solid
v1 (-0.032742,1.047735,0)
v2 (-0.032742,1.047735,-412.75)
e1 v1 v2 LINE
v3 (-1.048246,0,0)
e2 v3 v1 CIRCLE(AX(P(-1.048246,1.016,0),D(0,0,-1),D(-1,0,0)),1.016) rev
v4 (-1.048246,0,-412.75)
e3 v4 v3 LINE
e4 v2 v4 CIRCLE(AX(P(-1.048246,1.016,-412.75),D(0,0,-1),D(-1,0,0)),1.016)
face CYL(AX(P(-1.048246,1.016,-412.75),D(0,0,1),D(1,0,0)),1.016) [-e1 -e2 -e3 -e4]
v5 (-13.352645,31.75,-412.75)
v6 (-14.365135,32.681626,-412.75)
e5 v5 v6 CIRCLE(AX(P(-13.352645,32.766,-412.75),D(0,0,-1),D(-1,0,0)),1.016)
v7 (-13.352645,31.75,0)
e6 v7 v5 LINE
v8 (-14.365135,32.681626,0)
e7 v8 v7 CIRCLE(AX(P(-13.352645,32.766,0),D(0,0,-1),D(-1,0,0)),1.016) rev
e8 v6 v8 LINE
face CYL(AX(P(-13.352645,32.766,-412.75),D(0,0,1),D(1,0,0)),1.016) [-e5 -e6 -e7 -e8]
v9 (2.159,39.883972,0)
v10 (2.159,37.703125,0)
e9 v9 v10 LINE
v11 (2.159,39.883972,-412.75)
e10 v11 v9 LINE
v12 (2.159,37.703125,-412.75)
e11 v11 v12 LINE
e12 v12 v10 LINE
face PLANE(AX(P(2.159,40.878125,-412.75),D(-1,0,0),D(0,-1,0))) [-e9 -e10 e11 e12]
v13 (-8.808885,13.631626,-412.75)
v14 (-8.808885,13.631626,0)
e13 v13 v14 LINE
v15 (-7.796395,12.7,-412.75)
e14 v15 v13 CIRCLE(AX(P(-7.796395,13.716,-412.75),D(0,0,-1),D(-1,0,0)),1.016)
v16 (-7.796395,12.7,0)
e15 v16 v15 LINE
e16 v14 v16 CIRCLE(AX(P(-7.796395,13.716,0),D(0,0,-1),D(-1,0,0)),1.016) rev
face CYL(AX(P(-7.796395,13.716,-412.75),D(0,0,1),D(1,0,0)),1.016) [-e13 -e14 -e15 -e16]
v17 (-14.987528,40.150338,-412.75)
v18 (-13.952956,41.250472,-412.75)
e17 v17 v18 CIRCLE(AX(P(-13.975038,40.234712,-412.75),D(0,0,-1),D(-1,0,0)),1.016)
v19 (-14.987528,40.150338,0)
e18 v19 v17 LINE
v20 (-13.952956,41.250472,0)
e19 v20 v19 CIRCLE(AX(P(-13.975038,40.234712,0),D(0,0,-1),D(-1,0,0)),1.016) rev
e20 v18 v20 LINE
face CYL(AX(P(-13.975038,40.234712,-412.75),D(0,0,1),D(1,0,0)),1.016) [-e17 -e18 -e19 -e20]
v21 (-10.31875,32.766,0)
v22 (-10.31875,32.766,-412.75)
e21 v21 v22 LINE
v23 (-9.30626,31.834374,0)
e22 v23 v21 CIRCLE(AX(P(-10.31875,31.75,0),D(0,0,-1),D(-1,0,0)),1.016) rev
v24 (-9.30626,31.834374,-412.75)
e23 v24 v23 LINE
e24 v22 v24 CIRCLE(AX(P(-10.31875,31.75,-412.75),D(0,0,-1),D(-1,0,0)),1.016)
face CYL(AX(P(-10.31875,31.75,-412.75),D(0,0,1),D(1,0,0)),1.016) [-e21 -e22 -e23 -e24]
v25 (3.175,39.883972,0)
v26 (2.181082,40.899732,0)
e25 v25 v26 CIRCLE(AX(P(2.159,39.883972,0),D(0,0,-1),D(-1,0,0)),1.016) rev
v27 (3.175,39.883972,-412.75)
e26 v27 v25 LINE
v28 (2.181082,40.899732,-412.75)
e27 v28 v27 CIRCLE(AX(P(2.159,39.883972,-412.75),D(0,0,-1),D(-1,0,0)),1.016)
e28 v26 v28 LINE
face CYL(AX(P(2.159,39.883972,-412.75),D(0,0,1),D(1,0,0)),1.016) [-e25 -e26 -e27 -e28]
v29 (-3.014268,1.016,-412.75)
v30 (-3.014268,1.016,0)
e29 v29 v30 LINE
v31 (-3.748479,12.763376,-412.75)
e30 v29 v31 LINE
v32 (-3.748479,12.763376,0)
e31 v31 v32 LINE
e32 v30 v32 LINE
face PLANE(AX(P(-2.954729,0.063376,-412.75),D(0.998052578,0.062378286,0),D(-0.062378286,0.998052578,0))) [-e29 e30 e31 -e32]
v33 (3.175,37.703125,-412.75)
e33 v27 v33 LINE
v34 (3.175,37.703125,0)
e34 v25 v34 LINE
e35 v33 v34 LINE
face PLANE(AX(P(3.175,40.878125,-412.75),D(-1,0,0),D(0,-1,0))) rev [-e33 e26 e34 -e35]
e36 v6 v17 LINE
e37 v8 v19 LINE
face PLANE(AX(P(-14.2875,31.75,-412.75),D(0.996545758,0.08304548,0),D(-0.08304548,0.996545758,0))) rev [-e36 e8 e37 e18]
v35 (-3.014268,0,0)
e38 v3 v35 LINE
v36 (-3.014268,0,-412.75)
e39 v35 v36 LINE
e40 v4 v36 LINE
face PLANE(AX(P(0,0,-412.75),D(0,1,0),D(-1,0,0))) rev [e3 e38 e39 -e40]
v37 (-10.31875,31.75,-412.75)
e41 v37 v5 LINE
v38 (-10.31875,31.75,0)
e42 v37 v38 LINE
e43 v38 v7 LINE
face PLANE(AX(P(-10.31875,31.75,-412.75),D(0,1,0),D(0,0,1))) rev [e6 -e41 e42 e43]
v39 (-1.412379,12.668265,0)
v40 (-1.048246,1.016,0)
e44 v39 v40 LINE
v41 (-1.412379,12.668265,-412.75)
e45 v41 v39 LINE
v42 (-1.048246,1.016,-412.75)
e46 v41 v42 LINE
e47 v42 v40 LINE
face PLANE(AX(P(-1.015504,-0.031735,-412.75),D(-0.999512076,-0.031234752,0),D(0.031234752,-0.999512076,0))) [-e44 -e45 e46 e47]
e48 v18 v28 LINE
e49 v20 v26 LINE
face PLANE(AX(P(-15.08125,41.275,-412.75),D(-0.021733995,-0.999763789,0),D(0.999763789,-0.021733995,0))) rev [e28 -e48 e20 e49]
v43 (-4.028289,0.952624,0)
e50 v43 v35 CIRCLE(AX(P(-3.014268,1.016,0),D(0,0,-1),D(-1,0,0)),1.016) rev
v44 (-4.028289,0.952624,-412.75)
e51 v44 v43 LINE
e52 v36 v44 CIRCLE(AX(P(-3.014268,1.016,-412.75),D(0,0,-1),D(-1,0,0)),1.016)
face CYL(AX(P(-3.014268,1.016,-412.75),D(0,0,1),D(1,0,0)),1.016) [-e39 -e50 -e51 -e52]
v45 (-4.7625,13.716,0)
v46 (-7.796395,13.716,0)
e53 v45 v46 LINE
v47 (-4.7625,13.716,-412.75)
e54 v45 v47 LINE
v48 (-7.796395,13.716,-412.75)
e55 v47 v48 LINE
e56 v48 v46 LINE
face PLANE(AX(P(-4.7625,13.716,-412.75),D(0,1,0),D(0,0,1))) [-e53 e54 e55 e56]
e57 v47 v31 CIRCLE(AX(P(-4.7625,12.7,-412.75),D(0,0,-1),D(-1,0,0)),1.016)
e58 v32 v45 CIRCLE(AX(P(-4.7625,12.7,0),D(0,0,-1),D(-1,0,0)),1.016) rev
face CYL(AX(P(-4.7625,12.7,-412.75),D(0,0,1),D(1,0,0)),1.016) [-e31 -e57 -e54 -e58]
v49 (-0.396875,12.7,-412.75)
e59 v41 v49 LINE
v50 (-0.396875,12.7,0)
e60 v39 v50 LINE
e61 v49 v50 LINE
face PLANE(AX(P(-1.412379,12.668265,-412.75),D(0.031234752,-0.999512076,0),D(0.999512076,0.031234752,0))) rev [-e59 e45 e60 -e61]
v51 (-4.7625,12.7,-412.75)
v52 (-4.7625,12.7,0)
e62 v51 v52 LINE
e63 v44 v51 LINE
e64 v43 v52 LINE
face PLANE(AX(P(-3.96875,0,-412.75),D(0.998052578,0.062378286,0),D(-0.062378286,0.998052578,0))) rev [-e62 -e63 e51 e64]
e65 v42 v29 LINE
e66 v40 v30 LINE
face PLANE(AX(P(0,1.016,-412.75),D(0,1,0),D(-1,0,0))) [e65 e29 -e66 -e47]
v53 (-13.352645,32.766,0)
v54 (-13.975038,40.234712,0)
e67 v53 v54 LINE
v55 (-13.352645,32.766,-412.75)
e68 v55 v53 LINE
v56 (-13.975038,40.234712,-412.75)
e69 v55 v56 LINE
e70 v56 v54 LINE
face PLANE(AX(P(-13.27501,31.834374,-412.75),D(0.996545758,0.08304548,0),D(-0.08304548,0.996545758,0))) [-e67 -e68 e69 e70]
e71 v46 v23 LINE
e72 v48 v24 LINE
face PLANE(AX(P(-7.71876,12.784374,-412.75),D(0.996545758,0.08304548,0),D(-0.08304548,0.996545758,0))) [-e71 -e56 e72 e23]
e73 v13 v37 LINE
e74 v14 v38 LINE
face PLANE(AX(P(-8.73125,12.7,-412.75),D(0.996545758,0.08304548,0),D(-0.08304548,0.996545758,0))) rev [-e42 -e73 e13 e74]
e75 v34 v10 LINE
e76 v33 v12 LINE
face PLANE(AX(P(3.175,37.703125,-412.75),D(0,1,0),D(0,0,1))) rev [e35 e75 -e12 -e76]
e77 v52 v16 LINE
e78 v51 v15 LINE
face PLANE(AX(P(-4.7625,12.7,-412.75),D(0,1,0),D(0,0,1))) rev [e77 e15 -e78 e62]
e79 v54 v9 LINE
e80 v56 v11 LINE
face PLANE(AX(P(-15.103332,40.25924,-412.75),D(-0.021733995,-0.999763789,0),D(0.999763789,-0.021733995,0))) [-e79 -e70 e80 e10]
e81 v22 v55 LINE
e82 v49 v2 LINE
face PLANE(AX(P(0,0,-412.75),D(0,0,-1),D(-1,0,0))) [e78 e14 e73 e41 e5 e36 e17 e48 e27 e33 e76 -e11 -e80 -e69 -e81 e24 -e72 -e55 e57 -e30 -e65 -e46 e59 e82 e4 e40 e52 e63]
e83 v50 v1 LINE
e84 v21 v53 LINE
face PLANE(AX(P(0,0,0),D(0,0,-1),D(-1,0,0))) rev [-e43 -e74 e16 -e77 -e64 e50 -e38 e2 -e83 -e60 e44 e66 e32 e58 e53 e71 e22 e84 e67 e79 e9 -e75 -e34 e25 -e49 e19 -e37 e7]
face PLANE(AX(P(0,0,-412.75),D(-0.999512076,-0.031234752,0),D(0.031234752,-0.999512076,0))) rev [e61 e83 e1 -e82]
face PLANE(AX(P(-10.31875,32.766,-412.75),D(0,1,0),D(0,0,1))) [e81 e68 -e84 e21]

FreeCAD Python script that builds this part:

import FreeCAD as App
import Part
import Sketcher
from FreeCAD import Vector
Q = App.Units.Quantity


def edges_at(feature, points):
    """Names of the edges that pass closest to the given points."""
    edges = feature.Shape.Edges
    near = lambda p: min(range(len(edges)), key=lambda i: edges[i].distToShape(Part.Vertex(*p))[0])
    return sorted({f"Edge{near(p) + 1}" for p in points})

doc = App.newDocument("Part")
body = doc.addObject("PartDesign::Body", "Body")

# Sketch on XY plane
sketch1 = doc.addObject("Sketcher::SketchObject", "Sketch")
body.addObject(sketch1)
sketch1.AttachmentSupport = (doc.XY_Plane, [""])
sketch1.MapMode = "FlatFace"
sketch1.addGeometry([
    Part.LineSegment(Vector(3.2, 37.7, 0), Vector(3.2, 40.9, 0)),  # 0
    Part.LineSegment(Vector(3.2, 40.9, 0), Vector(-15.1, 41.3, 0)),  # 1
    Part.LineSegment(Vector(-15.1, 41.3, 0), Vector(-14.3, 31.8, 0)),  # 2
    Part.LineSegment(Vector(-14.3, 31.8, 0), Vector(-10.3, 31.8, 0)),  # 3
    Part.LineSegment(Vector(-10.3, 31.8, 0), Vector(-8.7, 12.7, 0)),  # 4
    Part.LineSegment(Vector(-8.7, 12.7, 0), Vector(-4.8, 12.7, 0)),  # 5
    Part.LineSegment(Vector(-4.8, 12.7, 0), Vector(-4, 0, 0)),  # 6
    Part.LineSegment(Vector(-4, 0, 0), Vector(0, 0, 0)),  # 7
    Part.LineSegment(Vector(0, 0, 0), Vector(-0.4, 12.7, 0)),  # 8
    Part.LineSegment(Vector(-0.4, 12.7, 0), Vector(-1.4, 12.7, 0)),  # 9
    Part.LineSegment(Vector(-1.4, 12.7, 0), Vector(-1, 1, 0)),  # 10
    Part.LineSegment(Vector(-1, 1, 0), Vector(-3, 1, 0)),  # 11
    Part.LineSegment(Vector(-3, 1, 0), Vector(-3.8, 13.7, 0)),  # 12
    Part.LineSegment(Vector(-3.8, 13.7, 0), Vector(-7.8, 13.7, 0)),  # 13
    Part.LineSegment(Vector(-7.8, 13.7, 0), Vector(-9.4, 32.8, 0)),  # 14
    Part.LineSegment(Vector(-9.4, 32.8, 0), Vector(-13.4, 32.8, 0)),  # 15
    Part.LineSegment(Vector(-13.4, 32.8, 0), Vector(-14, 40.2, 0)),  # 16
    Part.LineSegment(Vector(-14, 40.2, 0), Vector(2.2, 39.9, 0)),  # 17
    Part.LineSegment(Vector(2.2, 39.9, 0), Vector(2.2, 37.7, 0)),  # 18
    Part.LineSegment(Vector(2.2, 37.7, 0), Vector(3.2, 37.7, 0)),  # 19
], False)
sketch1.addConstraint([
    Sketcher.Constraint("Coincident", 0, 2, 1, 1),
    Sketcher.Constraint("Coincident", 1, 2, 2, 1),
    Sketcher.Constraint("Coincident", 2, 2, 3, 1),
    Sketcher.Constraint("Coincident", 3, 2, 4, 1),
    Sketcher.Constraint("Coincident", 4, 2, 5, 1),
    Sketcher.Constraint("Coincident", 5, 2, 6, 1),
    Sketcher.Constraint("Coincident", 6, 2, 7, 1),
    Sketcher.Constraint("Coincident", 7, 2, 8, 1),
    Sketcher.Constraint("Coincident", 8, 2, 9, 1),
    Sketcher.Constraint("Coincident", 9, 2, 10, 1),
    Sketcher.Constraint("Coincident", 10, 2, 11, 1),
    Sketcher.Constraint("Coincident", 11, 2, 12, 1),
    Sketcher.Constraint("Coincident", 12, 2, 13, 1),
    Sketcher.Constraint("Coincident", 13, 2, 14, 1),
    Sketcher.Constraint("Coincident", 14, 2, 15, 1),
    Sketcher.Constraint("Coincident", 15, 2, 16, 1),
    Sketcher.Constraint("Coincident", 16, 2, 17, 1),
    Sketcher.Constraint("Coincident", 17, 2, 18, 1),
    Sketcher.Constraint("Coincident", 18, 2, 19, 1),
    Sketcher.Constraint("Coincident", 19, 2, 0, 1),
    Sketcher.Constraint("Vertical", 0),
    Sketcher.Constraint("Horizontal", 3),
    Sketcher.Constraint("Horizontal", 5),
    Sketcher.Constraint("Horizontal", 7),
    Sketcher.Constraint("Horizontal", 11),
    Sketcher.Constraint("Horizontal", 13),
    Sketcher.Constraint("Horizontal", 15),
    Sketcher.Constraint("Vertical", 18),
    Sketcher.Constraint("Horizontal", 19),
    Sketcher.Constraint("Coincident", 7, 2, -1, 1),
    Sketcher.Constraint("Parallel", 2, 4),
    Sketcher.Constraint("Perpendicular", 8, 9),
    Sketcher.Constraint("Perpendicular", 9, 10),
    Sketcher.Constraint("Parallel", 6, 12),
    Sketcher.Constraint("Parallel", 4, 14),
    Sketcher.Constraint("Parallel", 14, 16),
    Sketcher.Constraint("Parallel", 1, 17),
    Sketcher.Constraint("Horizontal", 5, 2, 8, 2),
    Sketcher.Constraint("Equal", 3, 5),
    Sketcher.Constraint("Equal", 5, 7),
    Sketcher.Constraint("Equal", 7, 15),
    Sketcher.Constraint("Equal", 6, 12),
    Sketcher.Constraint("Equal", 4, 14),
    Sketcher.Constraint("DistanceX", 19, 1, 19, 2, Q("0.04 in")),
    Sketcher.Constraint("DistanceY", -1, 1, 4, 2, Q("0.5 in")),
    Sketcher.Constraint("Distance", 9, Q("0.04 in")),
    Sketcher.Constraint("DistanceX", 3, 1, 3, 2, Q("0.15625 in")),
    Sketcher.Constraint("DistanceY", 0, 1, 0, 2, Q("0.125 in")),
    Sketcher.Constraint("DistanceY", -1, 1, 2, 2, Q("1.25 in")),
    Sketcher.Constraint("DistanceY", -1, 1, 10, 2, Q("0.04 in")),
    Sketcher.Constraint("DistanceX", 1, 2, 4, 2, Q("0.25 in")),
    Sketcher.Constraint("DistanceX", 3, 2, 6, 2, Q("0.25 in")),
    Sketcher.Constraint("DistanceX", -1, 1, 0, 2, Q("0.125 in")),
    Sketcher.Constraint("DistanceY", -1, 1, 0, 2, Q("1.609375 in")),
    Sketcher.Constraint("DistanceX", 1, 2, -1, 1, Q("0.59375 in")),
    Sketcher.Constraint("DistanceX", 8, 2, -1, 1, Q("0.015625 in")),
    Sketcher.Constraint("Distance", 16, 7.4946),
    Sketcher.Constraint("DistanceX", 11, 2, 11, 1, 1.966022),
    Sketcher.Constraint("Distance", 17, 16.13785),
])
pad1 = doc.addObject("PartDesign::Pad", "Pad")
body.addObject(pad1)
pad1.Profile = sketch1
pad1.Length = Q("16.25 in")
pad1.Reversed = True
doc.recompute()

fillet = doc.addObject("PartDesign::Fillet", "Fillet")
body.addObject(fillet)
fillet.Base = (pad1, edges_at(pad1, [
    (-9.384, 32.766, -206.375),
    (-3.808, 13.716, -206.375),
    (0, 0, -206.375),
    (-3.969, 0, -206.375),
    (-8.731, 12.7, -206.375),
    (-14.287, 31.75, -206.375),
    (-15.081, 41.275, -206.375),
    (3.175, 40.878, -206.375),
]))
fillet.Radius = Q("0.04 in")

doc.recompute()
